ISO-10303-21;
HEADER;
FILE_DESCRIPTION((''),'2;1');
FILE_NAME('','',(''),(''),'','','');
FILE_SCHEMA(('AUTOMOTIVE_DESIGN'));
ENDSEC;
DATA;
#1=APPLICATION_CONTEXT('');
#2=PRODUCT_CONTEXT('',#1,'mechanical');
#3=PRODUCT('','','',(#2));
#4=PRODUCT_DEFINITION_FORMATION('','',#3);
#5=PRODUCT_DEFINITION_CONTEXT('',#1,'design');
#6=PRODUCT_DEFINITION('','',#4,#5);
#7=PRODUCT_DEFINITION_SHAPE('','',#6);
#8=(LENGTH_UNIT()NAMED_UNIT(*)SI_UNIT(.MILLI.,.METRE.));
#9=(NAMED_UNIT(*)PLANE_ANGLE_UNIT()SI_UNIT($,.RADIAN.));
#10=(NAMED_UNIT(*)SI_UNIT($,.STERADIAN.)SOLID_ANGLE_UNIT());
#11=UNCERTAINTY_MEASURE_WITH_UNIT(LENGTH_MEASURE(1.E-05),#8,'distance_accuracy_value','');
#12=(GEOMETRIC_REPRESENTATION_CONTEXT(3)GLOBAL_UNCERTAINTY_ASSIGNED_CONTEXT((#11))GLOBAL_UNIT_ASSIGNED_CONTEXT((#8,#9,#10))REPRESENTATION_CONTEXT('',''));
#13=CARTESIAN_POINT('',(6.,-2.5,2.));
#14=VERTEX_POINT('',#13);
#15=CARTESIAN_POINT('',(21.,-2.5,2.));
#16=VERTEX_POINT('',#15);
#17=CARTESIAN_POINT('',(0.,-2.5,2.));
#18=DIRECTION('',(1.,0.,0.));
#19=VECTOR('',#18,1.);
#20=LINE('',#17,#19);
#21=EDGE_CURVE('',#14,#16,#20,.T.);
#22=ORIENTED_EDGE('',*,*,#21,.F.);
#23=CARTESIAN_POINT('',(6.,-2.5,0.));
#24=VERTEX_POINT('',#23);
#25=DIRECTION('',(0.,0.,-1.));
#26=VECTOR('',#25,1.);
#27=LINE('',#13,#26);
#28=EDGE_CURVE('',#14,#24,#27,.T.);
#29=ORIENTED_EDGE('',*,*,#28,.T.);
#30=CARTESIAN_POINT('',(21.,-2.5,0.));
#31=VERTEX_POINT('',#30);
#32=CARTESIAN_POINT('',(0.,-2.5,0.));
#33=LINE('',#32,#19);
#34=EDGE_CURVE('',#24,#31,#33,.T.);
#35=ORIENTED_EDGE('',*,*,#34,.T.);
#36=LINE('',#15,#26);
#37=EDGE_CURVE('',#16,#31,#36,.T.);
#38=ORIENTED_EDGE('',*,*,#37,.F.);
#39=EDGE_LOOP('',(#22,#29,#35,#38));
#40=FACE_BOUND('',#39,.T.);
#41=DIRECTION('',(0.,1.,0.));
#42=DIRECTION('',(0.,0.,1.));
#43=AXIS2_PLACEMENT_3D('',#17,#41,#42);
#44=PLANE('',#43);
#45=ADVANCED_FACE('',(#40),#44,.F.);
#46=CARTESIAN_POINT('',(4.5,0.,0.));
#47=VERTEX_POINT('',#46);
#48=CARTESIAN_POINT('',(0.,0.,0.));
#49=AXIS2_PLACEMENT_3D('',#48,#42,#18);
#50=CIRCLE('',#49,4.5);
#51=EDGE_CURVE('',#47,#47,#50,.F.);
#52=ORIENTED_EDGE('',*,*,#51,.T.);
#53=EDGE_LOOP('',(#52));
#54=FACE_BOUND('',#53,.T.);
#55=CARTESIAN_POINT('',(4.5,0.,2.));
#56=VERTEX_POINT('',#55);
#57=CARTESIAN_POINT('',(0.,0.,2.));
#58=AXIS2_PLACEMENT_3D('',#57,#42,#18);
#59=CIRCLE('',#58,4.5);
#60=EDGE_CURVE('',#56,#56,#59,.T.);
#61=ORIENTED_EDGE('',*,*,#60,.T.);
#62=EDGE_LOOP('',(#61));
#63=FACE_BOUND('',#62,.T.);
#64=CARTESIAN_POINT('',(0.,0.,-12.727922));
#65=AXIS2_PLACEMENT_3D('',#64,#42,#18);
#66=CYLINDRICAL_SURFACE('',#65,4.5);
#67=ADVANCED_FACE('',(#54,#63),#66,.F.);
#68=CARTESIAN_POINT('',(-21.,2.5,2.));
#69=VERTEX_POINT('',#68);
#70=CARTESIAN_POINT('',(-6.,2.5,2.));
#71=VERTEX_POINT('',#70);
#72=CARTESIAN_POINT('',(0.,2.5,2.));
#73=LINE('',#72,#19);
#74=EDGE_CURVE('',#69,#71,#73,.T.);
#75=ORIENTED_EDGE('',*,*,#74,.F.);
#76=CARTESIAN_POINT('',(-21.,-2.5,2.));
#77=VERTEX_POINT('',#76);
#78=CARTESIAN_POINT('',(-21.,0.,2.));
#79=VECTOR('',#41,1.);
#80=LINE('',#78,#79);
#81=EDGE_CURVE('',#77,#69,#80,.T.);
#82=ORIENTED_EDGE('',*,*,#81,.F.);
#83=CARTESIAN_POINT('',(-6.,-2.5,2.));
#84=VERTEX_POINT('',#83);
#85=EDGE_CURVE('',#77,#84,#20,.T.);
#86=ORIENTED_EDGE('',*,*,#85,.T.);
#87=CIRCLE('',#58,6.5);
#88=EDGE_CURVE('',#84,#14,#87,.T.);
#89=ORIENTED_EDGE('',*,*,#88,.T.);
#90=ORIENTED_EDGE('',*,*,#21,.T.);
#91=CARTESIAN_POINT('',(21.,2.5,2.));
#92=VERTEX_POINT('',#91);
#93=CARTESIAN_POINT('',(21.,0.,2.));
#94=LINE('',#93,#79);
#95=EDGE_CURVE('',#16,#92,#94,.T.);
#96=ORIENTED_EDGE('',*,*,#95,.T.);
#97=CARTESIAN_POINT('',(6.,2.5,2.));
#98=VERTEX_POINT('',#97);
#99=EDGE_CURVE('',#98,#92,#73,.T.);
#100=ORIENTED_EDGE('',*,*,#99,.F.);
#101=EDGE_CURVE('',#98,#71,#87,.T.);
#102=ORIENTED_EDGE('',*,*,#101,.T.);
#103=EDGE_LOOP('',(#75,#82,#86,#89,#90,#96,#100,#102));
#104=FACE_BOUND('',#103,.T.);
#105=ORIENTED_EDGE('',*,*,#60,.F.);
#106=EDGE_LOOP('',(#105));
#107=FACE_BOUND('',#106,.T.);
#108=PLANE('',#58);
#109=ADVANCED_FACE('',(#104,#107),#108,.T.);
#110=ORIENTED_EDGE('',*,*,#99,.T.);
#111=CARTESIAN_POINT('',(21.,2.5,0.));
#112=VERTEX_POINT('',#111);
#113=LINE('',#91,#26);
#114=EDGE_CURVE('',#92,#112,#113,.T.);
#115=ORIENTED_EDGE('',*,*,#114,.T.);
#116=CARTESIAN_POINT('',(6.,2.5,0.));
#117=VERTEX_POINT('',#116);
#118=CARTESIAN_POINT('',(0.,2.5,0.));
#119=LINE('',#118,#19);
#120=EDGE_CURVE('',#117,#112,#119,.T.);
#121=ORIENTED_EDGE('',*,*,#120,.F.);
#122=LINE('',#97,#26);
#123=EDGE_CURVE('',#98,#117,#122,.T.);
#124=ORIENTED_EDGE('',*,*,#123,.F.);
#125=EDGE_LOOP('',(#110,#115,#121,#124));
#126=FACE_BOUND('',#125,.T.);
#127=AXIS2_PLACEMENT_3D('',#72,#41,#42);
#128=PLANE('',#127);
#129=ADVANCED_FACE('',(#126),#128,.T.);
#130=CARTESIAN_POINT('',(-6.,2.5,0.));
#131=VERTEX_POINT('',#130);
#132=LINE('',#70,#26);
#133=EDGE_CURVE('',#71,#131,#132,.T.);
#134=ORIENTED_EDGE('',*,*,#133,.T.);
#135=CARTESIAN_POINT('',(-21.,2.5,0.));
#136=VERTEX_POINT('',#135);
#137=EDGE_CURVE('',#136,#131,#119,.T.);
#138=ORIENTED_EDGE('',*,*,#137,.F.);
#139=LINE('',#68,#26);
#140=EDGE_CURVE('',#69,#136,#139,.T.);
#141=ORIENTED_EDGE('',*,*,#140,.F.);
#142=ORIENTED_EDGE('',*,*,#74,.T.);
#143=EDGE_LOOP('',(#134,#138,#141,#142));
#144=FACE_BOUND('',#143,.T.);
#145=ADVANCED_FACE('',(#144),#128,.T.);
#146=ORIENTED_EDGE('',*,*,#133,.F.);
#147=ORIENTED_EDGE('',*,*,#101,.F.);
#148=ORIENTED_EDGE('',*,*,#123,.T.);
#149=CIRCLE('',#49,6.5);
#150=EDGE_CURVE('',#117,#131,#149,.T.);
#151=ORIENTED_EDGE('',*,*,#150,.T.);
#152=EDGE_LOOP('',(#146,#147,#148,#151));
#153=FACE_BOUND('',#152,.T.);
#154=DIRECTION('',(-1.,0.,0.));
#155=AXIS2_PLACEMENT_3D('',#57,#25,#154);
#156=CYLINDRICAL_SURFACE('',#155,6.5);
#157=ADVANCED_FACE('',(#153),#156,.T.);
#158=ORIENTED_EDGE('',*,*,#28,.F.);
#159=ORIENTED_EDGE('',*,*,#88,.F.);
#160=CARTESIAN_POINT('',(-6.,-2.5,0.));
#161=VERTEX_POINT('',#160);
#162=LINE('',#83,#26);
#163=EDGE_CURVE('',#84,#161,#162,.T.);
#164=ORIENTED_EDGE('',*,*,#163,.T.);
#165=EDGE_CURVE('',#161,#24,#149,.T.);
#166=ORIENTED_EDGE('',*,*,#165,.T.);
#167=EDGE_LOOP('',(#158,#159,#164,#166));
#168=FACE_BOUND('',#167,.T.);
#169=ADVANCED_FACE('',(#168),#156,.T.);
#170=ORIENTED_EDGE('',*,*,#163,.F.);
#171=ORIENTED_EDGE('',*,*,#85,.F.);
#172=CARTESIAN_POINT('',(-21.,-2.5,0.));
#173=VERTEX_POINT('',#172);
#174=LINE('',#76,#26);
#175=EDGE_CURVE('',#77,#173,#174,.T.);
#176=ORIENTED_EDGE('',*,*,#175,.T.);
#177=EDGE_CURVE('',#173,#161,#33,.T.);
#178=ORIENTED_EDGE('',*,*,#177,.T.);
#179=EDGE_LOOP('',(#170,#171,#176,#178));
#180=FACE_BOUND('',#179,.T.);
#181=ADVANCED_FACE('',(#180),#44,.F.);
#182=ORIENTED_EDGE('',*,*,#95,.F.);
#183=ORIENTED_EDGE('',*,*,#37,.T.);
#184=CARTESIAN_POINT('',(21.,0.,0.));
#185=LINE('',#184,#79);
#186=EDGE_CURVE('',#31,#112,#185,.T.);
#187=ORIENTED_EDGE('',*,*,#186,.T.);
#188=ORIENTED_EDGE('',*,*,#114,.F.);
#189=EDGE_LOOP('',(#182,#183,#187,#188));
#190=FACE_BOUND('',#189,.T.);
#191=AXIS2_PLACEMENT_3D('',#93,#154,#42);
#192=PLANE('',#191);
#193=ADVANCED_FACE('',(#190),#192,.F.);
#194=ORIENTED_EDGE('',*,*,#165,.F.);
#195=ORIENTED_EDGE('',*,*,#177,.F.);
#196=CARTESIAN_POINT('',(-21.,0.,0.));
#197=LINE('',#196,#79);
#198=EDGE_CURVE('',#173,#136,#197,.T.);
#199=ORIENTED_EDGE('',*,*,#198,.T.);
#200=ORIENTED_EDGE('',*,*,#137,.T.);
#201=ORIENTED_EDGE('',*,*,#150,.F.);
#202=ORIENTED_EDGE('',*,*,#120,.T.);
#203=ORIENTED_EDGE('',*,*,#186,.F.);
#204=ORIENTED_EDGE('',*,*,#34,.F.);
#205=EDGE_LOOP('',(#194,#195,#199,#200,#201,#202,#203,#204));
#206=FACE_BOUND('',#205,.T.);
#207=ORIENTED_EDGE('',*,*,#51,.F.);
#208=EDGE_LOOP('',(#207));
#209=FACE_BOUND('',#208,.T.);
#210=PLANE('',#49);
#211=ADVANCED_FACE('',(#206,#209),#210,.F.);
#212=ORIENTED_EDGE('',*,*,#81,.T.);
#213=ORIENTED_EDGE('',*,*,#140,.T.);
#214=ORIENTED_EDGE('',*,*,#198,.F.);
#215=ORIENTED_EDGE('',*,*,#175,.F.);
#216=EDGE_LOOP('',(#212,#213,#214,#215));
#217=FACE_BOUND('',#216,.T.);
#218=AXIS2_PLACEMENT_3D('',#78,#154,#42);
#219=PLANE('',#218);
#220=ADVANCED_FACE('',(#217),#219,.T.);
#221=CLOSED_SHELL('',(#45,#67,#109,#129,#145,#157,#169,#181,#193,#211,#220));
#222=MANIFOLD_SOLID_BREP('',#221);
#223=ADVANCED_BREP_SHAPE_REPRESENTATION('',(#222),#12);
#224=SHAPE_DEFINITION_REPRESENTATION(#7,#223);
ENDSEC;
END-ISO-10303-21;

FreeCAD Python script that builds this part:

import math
import FreeCAD as App
import Part
import Sketcher

doc = App.newDocument("Part")
body = doc.addObject("PartDesign::Body", "Body")

# Sketch on XY plane
sketch1 = body.newObject("Sketcher::SketchObject", "Sketch")
sketch1.AttachmentSupport = (doc.getObject("XY_Plane"), [""])
sketch1.MapMode = "FlatFace"
sketch1.addGeometry(Part.LineSegment(App.Vector(-21, 2, 0), App.Vector(-21, -2, 0)), False)
sketch1.addGeometry(Part.LineSegment(App.Vector(-21, -2, 0), App.Vector(-6, -2, 0)), False)
sketch1.addGeometry(Part.ArcOfCircle(Part.Circle(App.Vector(0, 0, 0), App.Vector(0, 0, 1), 6), math.radians(-157), math.radians(-23)), False)
sketch1.addGeometry(Part.LineSegment(App.Vector(6, -2, 0), App.Vector(21, -2, 0)), False)
sketch1.addGeometry(Part.LineSegment(App.Vector(21, -2, 0), App.Vector(21, 2, 0)), False)
sketch1.addGeometry(Part.LineSegment(App.Vector(21, 2, 0), App.Vector(6, 2, 0)), False)
sketch1.addGeometry(Part.ArcOfCircle(Part.Circle(App.Vector(0, 0, 0), App.Vector(0, 0, 1), 6), math.radians(23), math.radians(157)), False)
sketch1.addGeometry(Part.LineSegment(App.Vector(-6, 2, 0), App.Vector(-21, 2, 0)), False)
sketch1.addConstraint(Sketcher.Constraint("Coincident", 0, 2, 1, 1))
sketch1.addConstraint(Sketcher.Constraint("Coincident", 1, 2, 2, 1))
sketch1.addConstraint(Sketcher.Constraint("Coincident", 2, 2, 3, 1))
sketch1.addConstraint(Sketcher.Constraint("Coincident", 3, 2, 4, 1))
sketch1.addConstraint(Sketcher.Constraint("Coincident", 4, 2, 5, 1))
sketch1.addConstraint(Sketcher.Constraint("Coincident", 5, 2, 6, 1))
sketch1.addConstraint(Sketcher.Constraint("Coincident", 6, 2, 7, 1))
sketch1.addConstraint(Sketcher.Constraint("Coincident", 7, 2, 0, 1))
sketch1.addConstraint(Sketcher.Constraint("Vertical", 0))
sketch1.addConstraint(Sketcher.Constraint("Horizontal", 1))
sketch1.addConstraint(Sketcher.Constraint("Horizontal", 3))
sketch1.addConstraint(Sketcher.Constraint("Vertical", 4))
sketch1.addConstraint(Sketcher.Constraint("Horizontal", 5))
sketch1.addConstraint(Sketcher.Constraint("Horizontal", 7))
sketch1.addConstraint(Sketcher.Constraint("Coincident", 2, 3, -1, 1))
sketch1.addConstraint(Sketcher.Constraint("Coincident", 6, 3, -1, 1))
sketch1.addConstraint(Sketcher.Constraint("Equal", 2, 6))
sketch1.addConstraint(Sketcher.Constraint("Symmetric", 0, 2, 4, 2, -1, 1))
sketch1.addConstraint(Sketcher.Constraint("Horizontal", 1, 2, 2, 2))
sketch1.addConstraint(Sketcher.Constraint("Horizontal", 5, 2, 6, 2))
sketch1.addConstraint(Sketcher.Constraint("Radius", 2, 6.5))
sketch1.addConstraint(Sketcher.Constraint("DistanceX", 1, 1, 1, 2, 15.0))
sketch1.addConstraint(Sketcher.Constraint("DistanceY", 0, 2, 0, 1, 5.0))
pad1 = body.newObject("PartDesign::Pad", "Pad")
pad1.Profile = sketch1
pad1.Length = 2

# Sketch on XY plane
sketch2 = body.newObject("Sketcher::SketchObject", "Sketch001")
sketch2.AttachmentSupport = (doc.getObject("XY_Plane"), [""])
sketch2.MapMode = "FlatFace"
sketch2.AttachmentOffset = App.Placement(App.Vector(0, 0, 2), App.Rotation())
sketch2.addGeometry(Part.Circle(App.Vector(0, 0, 0), App.Vector(0, 0, 1), 4.5), False)
sketch2.addConstraint(Sketcher.Constraint("Coincident", 0, 3, -1, 1))
sketch2.addConstraint(Sketcher.Constraint("Diameter", 0, 9.0))
pocket1 = body.newObject("PartDesign::Pocket", "Pocket")
pocket1.Profile = sketch2
pocket1.Length = 2

doc.recompute()
